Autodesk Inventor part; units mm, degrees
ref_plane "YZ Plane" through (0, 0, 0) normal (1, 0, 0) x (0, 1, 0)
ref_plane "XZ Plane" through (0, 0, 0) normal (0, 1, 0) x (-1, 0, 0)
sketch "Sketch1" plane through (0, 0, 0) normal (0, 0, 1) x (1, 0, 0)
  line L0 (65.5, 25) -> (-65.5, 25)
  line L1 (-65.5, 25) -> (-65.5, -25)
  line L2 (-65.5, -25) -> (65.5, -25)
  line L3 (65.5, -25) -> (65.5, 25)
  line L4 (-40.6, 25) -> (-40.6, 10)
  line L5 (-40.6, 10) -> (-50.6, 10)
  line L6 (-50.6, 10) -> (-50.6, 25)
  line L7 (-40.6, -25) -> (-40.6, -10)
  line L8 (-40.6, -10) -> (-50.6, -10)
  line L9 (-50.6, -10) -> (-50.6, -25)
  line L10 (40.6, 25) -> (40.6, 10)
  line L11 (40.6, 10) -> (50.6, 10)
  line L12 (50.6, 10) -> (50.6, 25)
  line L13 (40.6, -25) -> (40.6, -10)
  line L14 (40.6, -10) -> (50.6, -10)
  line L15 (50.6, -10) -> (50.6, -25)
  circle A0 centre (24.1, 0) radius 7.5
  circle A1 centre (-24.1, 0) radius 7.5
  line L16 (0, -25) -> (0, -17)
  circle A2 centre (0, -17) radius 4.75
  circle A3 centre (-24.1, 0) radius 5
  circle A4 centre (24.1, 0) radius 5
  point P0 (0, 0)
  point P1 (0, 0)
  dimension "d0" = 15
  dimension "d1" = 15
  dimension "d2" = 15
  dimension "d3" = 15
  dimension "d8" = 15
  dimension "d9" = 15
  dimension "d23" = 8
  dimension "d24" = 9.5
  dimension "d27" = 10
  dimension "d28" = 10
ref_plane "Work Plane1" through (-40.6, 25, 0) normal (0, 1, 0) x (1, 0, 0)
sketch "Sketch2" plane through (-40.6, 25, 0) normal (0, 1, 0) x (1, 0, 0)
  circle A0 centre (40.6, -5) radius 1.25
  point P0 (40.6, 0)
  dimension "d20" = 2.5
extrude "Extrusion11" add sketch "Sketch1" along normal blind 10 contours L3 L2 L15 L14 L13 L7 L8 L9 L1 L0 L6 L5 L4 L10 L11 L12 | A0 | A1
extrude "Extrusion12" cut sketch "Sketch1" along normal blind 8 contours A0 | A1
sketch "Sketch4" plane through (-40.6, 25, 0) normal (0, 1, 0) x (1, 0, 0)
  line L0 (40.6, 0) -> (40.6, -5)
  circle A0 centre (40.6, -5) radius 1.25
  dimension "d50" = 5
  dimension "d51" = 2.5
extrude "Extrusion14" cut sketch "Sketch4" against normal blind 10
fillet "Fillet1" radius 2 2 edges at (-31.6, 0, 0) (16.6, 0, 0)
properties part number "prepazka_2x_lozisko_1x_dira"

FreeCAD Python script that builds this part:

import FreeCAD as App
import Part
import Sketcher

V = App.Vector
Q = App.Units.Quantity


def edges_at(feature, points):
    """Names of the edges that pass closest to the given points."""
    edges = feature.Shape.Edges
    near = lambda p: min(range(len(edges)), key=lambda i: edges[i].distToShape(Part.Vertex(*p))[0])
    return sorted({f"Edge{near(p) + 1}" for p in points})


def add_polygon(sketch, points):
    """Adds a closed chain of lines whose ends are joined by coincident constraints."""
    first, n = sketch.GeometryCount, len(points)
    for a, b in zip(points, points[1:] + points[:1]):
        sketch.addGeometry(Part.LineSegment(App.Vector(*a, 0), App.Vector(*b, 0)), False)
    for i in range(n):
        sketch.addConstraint(Sketcher.Constraint("Coincident", first + i, 2, first + (i + 1) % n, 1))

doc = App.newDocument("Part")
body = doc.addObject("PartDesign::Body", "Body")

sketch1 = body.newObject("Sketcher::SketchObject", "Sketch")
sketch1.AttachmentSupport = (doc.getObject("XY_Plane"), [""])
sketch1.MapMode = "FlatFace"
add_polygon(sketch1, [(65.5, -25), (65.5, 25), (50.6, 25), (50.6, 10), (40.6, 10), (40.6, 25), (-40.6, 25), (-40.6, 10), (-50.6, 10), (-50.6, 25), (-65.5, 25), (-65.5, -25), (-50.6, -25), (-50.6, -10), (-40.6, -10), (-40.6, -25), (0, -25), (40.6, -25), (40.6, -10), (50.6, -10), (50.6, -25)])
sketch1.addGeometry(Part.Circle(V(0, -17, 0), V(0, 0, 1), 4.75), False)
sketch1.addGeometry(Part.Circle(V(-24.1, 0, 0), V(0, 0, 1), 5), False)
sketch1.addGeometry(Part.Circle(V(24.1, 0, 0), V(0, 0, 1), 5), False)
sketch1.addConstraint(Sketcher.Constraint("Vertical", 0))
sketch1.addConstraint(Sketcher.Constraint("Horizontal", 1))
sketch1.addConstraint(Sketcher.Constraint("Vertical", 2))
sketch1.addConstraint(Sketcher.Constraint("Horizontal", 3))
sketch1.addConstraint(Sketcher.Constraint("Vertical", 4))
sketch1.addConstraint(Sketcher.Constraint("Horizontal", 5))
sketch1.addConstraint(Sketcher.Constraint("Vertical", 6))
sketch1.addConstraint(Sketcher.Constraint("Horizontal", 7))
sketch1.addConstraint(Sketcher.Constraint("Vertical", 8))
sketch1.addConstraint(Sketcher.Constraint("Horizontal", 9))
sketch1.addConstraint(Sketcher.Constraint("Vertical", 10))
sketch1.addConstraint(Sketcher.Constraint("Horizontal", 11))
sketch1.addConstraint(Sketcher.Constraint("Vertical", 12))
sketch1.addConstraint(Sketcher.Constraint("Horizontal", 13))
sketch1.addConstraint(Sketcher.Constraint("Vertical", 14))
sketch1.addConstraint(Sketcher.Constraint("Horizontal", 15))
sketch1.addConstraint(Sketcher.Constraint("Horizontal", 16))
sketch1.addConstraint(Sketcher.Constraint("Vertical", 17))
sketch1.addConstraint(Sketcher.Constraint("Horizontal", 18))
sketch1.addConstraint(Sketcher.Constraint("Vertical", 19))
sketch1.addConstraint(Sketcher.Constraint("Horizontal", 20))
sketch1.addConstraint(Sketcher.Constraint("Equal", 22, 23))
sketch1.addConstraint(Sketcher.Constraint("Symmetric", 22, 3, 23, 3, -1, 1))
sketch1.addConstraint(Sketcher.Constraint("Symmetric", 0, 2, 10, 2, -1, 1))
sketch1.addConstraint(Sketcher.Constraint("Symmetric", 2, 2, 12, 2, -1, 1))
sketch1.addConstraint(Sketcher.Constraint("Symmetric", 4, 2, 14, 2, -1, 1))
sketch1.addConstraint(Sketcher.Constraint("Symmetric", 6, 2, 17, 2, -1, 1))
sketch1.addConstraint(Sketcher.Constraint("Symmetric", 8, 2, 19, 2, -1, 1))
sketch1.addConstraint(Sketcher.Constraint("Symmetric", 3, 2, 6, 2, -2))
sketch1.addConstraint(Sketcher.Constraint("Symmetric", 1, 2, 8, 2, -2))
sketch1.addConstraint(Sketcher.Constraint("PointOnObject", 21, 3, -2))
sketch1.addConstraint(Sketcher.Constraint("PointOnObject", 22, 3, -1))
sketch1.addConstraint(Sketcher.Constraint("PointOnObject", 15, 2, -2))
sketch1.addConstraint(Sketcher.Constraint("Horizontal", 1, 2, 4, 2))
sketch1.addConstraint(Sketcher.Constraint("Diameter", 22, Q("10 mm")))
sketch1.addConstraint(Sketcher.Constraint("Diameter", 21, Q("9.5 mm")))
sketch1.addConstraint(Sketcher.Constraint("DistanceX", 3, 2, 3, 1, Q("10 mm")))
sketch1.addConstraint(Sketcher.Constraint("DistanceY", 2, 2, 2, 1, Q("15 mm")))
sketch1.addConstraint(Sketcher.Constraint("DistanceY", -1, 1, 2, 2, Q("10 mm")))
sketch1.addConstraint(Sketcher.Constraint("DistanceY", 15, 2, 21, 3, Q("8 mm")))
sketch1.addConstraint(Sketcher.Constraint("DistanceX", 1, 2, 1, 1, Q("14.9 mm")))
sketch1.addConstraint(Sketcher.Constraint("DistanceX", 5, 2, 5, 1, Q("81.2 mm")))
sketch1.addConstraint(Sketcher.Constraint("DistanceX", 22, 3, -1, 1, Q("24.1 mm")))
pad1 = body.newObject("PartDesign::Pad", "Pad")
pad1.Profile = sketch1
pad1.Length = 10

sketch2 = body.newObject("Sketcher::SketchObject", "Sketch001")
sketch2.AttachmentSupport = (doc.getObject("XY_Plane"), [""])
sketch2.MapMode = "FlatFace"
sketch2.addGeometry(Part.Circle(V(24.1, 0, 0), V(0, 0, 1), 7.5), False)
sketch2.addGeometry(Part.Circle(V(24.1, 0, 0), V(0, 0, 1), 5), False)
sketch2.addGeometry(Part.Circle(V(-24.1, 0, 0), V(0, 0, 1), 7.5), False)
sketch2.addGeometry(Part.Circle(V(-24.1, 0, 0), V(0, 0, 1), 5), False)
sketch2.addConstraint(Sketcher.Constraint("Coincident", 1, 3, 0, 3))
sketch2.addConstraint(Sketcher.Constraint("Coincident", 3, 3, 2, 3))
sketch2.addConstraint(Sketcher.Constraint("Equal", 0, 2))
sketch2.addConstraint(Sketcher.Constraint("Equal", 1, 3))
sketch2.addConstraint(Sketcher.Constraint("Symmetric", 0, 3, 2, 3, -1, 1))
sketch2.addConstraint(Sketcher.Constraint("PointOnObject", 0, 3, -1))
sketch2.addConstraint(Sketcher.Constraint("Diameter", 0, Q("15 mm")))
sketch2.addConstraint(Sketcher.Constraint("Diameter", 1, Q("10 mm")))
sketch2.addConstraint(Sketcher.Constraint("DistanceX", -1, 1, 0, 3, Q("24.1 mm")))
pocket1 = body.newObject("PartDesign::Pocket", "Pocket")
pocket1.Profile = sketch2
pocket1.Length = 8
pocket1.Reversed = True

sketch3 = body.newObject("Sketcher::SketchObject", "Sketch002")
sketch3.AttachmentSupport = (doc.getObject("XZ_Plane"), [""])
sketch3.MapMode = "FlatFace"
sketch3.AttachmentOffset = App.Placement(V(0, 0, -25), App.Rotation())
sketch3.addGeometry(Part.Circle(V(0, 5, 0), V(0, 0, 1), 1.25), False)
sketch3.addConstraint(Sketcher.Constraint("PointOnObject", 0, 3, -2))
sketch3.addConstraint(Sketcher.Constraint("Diameter", 0, Q("2.5 mm")))
sketch3.addConstraint(Sketcher.Constraint("DistanceY", -1, 1, 0, 3, Q("5 mm")))
pocket2 = body.newObject("PartDesign::Pocket", "Pocket001")
pocket2.Profile = sketch3
pocket2.Length = 10
pocket2.Reversed = True
doc.recompute()

fillet = body.newObject("PartDesign::Fillet", "Fillet")
fillet.Base = (pocket2, edges_at(pocket2, [(-31.6, 0, 0), (16.6, 0, 0)]))
fillet.Radius = 2

doc.recompute()
